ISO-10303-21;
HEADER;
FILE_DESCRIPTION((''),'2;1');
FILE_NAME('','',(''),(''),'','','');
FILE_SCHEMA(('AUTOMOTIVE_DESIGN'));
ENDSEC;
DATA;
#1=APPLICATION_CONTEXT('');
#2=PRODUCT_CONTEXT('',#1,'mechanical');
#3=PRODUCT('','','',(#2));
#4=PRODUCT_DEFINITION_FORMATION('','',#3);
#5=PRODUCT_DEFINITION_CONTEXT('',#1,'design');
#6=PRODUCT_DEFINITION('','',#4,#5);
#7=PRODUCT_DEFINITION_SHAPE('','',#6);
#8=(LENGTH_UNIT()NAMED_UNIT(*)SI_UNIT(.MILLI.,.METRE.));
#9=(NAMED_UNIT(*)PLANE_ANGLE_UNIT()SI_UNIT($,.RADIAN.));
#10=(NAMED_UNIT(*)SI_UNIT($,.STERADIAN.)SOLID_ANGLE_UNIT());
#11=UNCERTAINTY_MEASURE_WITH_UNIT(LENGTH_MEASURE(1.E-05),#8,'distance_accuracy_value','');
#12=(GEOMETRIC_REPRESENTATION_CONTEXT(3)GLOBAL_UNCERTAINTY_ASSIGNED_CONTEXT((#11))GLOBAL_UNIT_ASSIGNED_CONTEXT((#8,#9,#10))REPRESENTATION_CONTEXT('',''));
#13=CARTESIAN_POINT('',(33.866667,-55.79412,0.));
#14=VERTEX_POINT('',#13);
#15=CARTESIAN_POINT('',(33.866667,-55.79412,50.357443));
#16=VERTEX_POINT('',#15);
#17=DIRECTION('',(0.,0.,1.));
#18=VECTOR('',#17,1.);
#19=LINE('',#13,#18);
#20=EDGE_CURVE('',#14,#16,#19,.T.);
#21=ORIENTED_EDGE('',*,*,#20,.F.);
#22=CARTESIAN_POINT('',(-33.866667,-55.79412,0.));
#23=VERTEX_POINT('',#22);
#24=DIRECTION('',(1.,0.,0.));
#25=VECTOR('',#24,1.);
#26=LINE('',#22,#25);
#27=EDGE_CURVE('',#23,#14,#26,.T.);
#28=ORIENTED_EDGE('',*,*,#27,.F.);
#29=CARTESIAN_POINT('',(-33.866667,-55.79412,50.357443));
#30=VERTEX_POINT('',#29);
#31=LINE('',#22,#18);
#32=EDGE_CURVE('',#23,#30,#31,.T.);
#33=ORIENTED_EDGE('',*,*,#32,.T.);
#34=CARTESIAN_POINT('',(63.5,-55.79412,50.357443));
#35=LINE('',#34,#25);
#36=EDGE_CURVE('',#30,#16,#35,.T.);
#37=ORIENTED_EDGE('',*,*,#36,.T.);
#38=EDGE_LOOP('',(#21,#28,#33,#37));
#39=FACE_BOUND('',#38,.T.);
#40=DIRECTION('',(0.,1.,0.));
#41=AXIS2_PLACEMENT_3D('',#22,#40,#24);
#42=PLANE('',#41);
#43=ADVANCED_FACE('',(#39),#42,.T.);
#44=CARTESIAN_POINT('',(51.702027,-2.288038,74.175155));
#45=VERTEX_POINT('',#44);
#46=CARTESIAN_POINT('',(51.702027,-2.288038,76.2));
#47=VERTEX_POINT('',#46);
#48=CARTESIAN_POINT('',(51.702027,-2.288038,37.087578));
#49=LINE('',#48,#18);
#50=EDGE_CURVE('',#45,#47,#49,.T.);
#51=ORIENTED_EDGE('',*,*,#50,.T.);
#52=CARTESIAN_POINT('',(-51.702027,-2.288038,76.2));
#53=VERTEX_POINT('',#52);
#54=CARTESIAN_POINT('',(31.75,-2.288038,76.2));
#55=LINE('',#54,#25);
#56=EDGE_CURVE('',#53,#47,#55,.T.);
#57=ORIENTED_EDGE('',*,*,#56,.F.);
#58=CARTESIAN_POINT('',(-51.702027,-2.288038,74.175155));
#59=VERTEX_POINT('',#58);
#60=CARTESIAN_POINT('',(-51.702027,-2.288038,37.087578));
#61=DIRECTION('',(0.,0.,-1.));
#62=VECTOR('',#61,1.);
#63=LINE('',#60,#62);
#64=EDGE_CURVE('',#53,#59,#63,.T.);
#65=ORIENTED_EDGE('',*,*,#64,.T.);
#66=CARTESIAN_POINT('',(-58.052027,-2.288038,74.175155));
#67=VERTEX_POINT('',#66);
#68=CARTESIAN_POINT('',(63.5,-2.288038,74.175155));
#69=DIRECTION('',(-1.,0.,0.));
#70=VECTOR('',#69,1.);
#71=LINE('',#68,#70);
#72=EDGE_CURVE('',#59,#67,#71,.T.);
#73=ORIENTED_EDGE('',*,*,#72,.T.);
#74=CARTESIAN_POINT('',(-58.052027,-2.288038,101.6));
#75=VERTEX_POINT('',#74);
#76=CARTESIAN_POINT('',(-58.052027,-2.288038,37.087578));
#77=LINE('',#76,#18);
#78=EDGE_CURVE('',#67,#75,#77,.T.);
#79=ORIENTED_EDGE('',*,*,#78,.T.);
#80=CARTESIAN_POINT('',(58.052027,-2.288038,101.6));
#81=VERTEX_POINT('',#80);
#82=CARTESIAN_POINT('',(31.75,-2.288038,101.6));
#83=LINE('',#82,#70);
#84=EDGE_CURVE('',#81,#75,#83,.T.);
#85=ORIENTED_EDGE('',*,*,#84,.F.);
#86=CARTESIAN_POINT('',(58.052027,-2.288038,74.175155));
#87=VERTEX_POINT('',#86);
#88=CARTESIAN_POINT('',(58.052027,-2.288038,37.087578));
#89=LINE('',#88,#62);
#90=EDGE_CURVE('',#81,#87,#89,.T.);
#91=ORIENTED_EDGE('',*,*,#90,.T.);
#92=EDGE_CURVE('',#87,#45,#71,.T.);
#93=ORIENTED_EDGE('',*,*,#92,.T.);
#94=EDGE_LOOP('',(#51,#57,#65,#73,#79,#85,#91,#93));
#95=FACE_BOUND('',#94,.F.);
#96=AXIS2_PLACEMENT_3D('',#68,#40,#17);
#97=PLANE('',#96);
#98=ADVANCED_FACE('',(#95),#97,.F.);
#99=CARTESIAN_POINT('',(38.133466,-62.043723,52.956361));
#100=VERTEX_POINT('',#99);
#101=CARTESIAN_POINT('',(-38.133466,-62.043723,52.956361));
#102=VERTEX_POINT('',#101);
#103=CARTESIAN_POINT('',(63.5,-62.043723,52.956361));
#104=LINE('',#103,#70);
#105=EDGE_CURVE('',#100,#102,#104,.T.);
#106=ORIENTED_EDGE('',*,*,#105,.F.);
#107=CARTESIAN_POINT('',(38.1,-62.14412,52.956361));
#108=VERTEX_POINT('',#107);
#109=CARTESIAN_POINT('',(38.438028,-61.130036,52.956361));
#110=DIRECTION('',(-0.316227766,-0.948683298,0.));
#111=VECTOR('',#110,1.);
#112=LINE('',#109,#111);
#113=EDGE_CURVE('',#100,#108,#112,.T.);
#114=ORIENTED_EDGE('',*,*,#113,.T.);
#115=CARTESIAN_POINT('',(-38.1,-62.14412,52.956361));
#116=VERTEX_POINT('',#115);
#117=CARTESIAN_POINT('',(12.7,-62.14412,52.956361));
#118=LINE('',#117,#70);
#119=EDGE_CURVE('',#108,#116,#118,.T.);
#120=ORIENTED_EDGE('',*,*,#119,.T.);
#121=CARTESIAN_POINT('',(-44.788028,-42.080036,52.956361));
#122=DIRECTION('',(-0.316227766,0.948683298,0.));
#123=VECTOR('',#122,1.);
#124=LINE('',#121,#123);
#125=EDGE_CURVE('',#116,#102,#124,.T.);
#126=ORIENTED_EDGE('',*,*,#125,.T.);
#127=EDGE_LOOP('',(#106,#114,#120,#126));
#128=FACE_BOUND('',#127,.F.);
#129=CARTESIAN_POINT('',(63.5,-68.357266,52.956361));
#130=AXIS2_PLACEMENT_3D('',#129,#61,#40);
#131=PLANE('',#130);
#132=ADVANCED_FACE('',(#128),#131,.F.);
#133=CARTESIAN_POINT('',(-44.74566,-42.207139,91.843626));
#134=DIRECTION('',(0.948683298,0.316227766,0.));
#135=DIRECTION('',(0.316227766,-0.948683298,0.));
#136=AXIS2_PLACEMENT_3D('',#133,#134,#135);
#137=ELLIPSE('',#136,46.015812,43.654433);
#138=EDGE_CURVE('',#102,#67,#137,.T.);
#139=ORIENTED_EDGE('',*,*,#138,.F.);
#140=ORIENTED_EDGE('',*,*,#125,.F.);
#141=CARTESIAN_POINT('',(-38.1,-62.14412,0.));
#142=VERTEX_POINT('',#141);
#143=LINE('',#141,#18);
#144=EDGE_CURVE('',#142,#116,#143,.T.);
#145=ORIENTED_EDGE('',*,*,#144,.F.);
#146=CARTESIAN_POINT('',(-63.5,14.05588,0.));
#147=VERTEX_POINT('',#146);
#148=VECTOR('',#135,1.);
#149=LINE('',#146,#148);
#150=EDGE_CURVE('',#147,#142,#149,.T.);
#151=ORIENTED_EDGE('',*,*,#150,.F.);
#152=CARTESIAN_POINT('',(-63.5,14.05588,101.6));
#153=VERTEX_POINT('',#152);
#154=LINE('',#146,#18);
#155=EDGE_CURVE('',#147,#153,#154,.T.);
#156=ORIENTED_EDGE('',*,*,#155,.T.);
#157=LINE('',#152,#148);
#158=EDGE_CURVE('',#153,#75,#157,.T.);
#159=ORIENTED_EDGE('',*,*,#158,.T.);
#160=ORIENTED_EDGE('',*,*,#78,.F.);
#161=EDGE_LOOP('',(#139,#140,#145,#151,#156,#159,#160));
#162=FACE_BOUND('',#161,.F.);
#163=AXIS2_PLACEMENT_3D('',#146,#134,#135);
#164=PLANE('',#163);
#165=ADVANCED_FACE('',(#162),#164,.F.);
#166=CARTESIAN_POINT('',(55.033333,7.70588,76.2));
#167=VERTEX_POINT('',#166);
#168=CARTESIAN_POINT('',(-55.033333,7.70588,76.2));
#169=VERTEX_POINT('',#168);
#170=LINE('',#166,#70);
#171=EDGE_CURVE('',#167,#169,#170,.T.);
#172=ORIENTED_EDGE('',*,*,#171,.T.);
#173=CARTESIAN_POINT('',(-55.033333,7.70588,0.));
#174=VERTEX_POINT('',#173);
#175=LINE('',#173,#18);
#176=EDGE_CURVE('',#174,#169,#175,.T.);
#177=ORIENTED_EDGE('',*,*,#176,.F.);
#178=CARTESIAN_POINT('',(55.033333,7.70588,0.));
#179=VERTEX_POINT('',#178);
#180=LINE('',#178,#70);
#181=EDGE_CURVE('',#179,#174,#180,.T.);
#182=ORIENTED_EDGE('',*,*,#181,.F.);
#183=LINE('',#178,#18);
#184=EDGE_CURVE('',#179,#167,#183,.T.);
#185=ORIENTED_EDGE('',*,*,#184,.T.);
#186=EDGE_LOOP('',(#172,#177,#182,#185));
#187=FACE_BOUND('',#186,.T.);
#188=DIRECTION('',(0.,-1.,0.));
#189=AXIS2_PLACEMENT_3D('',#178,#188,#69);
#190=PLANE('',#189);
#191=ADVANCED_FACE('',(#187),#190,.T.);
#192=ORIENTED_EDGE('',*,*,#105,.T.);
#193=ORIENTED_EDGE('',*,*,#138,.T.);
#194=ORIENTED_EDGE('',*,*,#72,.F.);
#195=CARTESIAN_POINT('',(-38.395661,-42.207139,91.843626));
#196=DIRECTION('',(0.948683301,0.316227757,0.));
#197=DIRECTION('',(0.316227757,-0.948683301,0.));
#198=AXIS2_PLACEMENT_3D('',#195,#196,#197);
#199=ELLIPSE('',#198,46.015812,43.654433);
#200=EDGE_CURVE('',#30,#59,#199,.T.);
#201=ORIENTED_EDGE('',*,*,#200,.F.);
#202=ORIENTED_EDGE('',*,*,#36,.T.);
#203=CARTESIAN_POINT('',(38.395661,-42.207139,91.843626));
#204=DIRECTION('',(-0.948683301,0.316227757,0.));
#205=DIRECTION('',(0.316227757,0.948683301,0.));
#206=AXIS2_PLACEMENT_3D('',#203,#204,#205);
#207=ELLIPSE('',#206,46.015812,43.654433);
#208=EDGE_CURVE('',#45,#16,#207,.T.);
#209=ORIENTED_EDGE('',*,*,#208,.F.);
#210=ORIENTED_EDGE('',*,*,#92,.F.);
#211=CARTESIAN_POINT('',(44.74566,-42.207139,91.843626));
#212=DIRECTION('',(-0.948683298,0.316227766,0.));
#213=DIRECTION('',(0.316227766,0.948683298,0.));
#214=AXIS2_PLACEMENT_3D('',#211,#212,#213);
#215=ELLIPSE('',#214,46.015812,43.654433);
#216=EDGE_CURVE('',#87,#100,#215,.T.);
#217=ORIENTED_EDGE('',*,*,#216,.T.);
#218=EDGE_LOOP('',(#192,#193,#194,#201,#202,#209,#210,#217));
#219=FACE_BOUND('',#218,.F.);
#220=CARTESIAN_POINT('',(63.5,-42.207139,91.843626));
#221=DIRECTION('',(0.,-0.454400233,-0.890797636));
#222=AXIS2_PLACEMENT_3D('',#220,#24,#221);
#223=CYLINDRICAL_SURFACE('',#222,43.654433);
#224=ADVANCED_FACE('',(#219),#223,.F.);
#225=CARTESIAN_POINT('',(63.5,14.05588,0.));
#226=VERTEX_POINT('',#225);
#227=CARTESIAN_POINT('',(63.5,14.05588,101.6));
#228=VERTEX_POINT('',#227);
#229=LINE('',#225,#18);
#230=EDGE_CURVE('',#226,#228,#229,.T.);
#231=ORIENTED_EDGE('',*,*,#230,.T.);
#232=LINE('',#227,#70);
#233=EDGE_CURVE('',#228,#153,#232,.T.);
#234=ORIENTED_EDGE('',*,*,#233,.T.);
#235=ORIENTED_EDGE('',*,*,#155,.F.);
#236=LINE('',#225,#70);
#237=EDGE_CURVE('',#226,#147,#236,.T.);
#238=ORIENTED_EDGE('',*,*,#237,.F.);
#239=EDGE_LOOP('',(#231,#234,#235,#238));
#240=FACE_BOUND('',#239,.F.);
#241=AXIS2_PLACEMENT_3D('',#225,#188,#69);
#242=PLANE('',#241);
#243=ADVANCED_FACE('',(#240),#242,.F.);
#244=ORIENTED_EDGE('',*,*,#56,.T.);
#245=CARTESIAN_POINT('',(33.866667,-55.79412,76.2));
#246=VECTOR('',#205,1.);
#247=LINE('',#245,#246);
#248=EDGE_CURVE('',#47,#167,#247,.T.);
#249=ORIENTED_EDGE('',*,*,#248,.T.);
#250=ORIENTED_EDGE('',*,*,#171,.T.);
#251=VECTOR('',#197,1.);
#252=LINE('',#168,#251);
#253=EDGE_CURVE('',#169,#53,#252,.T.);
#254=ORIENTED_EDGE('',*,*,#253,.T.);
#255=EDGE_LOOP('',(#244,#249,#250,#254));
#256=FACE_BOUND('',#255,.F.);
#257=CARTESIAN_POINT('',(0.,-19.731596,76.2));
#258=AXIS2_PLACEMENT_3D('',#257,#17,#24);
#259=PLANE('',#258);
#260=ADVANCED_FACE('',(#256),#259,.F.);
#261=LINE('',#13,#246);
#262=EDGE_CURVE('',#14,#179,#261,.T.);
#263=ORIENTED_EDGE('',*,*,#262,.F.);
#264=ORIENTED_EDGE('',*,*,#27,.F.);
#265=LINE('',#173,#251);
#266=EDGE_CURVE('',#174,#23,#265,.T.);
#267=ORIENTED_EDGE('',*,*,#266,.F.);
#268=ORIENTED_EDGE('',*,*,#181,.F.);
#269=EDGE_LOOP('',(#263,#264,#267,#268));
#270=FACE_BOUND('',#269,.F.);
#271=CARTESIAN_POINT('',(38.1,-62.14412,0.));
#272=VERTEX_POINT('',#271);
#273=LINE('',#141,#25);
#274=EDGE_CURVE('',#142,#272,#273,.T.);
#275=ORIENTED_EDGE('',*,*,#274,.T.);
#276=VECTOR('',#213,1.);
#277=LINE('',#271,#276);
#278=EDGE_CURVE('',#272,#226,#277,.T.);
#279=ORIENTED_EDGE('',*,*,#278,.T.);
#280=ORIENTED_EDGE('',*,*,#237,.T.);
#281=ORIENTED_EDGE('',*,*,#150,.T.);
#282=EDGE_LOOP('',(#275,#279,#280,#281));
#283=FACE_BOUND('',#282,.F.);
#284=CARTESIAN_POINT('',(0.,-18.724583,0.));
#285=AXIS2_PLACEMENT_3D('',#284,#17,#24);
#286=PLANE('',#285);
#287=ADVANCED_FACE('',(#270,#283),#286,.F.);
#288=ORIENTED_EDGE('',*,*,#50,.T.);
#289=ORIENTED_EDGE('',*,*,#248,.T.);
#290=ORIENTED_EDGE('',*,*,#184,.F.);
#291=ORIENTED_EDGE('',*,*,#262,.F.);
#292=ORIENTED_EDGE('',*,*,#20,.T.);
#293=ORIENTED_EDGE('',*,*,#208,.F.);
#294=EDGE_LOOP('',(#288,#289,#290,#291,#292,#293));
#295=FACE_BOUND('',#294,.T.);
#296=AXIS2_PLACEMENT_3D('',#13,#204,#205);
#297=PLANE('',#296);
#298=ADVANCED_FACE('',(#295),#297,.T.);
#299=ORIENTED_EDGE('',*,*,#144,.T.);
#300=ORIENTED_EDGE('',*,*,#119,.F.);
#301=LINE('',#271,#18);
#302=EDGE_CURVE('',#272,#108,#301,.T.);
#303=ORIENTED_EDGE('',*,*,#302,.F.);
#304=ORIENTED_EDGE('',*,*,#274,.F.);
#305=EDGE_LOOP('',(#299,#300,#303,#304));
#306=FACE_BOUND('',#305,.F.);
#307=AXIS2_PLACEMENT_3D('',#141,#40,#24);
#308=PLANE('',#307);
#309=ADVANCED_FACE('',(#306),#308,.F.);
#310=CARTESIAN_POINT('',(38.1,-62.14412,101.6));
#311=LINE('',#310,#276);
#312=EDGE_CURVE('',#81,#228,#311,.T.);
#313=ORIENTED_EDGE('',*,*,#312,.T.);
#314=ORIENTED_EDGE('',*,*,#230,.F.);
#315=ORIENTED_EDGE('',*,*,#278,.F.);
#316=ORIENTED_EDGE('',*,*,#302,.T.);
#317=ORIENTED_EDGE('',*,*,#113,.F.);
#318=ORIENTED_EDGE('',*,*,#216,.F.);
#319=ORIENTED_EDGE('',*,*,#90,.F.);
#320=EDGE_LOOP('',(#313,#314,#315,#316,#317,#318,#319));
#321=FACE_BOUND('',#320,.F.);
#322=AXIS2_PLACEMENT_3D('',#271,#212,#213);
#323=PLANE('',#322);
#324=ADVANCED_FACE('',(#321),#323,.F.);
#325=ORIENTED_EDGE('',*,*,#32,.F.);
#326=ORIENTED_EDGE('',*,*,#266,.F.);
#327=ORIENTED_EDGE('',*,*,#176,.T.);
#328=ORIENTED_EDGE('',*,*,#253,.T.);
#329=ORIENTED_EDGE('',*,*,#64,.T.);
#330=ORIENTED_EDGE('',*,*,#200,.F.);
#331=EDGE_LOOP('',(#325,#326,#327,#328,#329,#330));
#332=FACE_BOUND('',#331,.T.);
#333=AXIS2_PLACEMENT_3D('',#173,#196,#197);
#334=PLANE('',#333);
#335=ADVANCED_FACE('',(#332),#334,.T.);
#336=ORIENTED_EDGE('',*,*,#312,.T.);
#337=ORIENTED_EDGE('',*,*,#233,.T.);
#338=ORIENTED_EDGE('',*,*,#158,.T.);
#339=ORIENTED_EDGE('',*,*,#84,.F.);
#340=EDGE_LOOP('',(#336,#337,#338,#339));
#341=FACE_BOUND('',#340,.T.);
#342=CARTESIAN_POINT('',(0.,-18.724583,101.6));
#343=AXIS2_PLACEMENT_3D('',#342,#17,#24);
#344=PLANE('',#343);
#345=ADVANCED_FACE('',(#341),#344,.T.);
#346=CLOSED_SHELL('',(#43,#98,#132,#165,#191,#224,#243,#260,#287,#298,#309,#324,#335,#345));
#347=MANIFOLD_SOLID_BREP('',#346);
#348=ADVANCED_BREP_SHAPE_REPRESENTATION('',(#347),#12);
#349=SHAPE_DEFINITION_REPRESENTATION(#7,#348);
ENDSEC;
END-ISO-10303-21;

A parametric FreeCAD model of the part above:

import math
import FreeCAD as App
import Part
import Sketcher
from FreeCAD import Vector
Q = App.Units.Quantity

doc = App.newDocument("Part")
body = doc.addObject("PartDesign::Body", "Body")

# Sketch on XY plane
sketch1 = body.newObject("Sketcher::SketchObject", "Sketch")
sketch1.AttachmentSupport = (doc.getObject("XY_Plane"), [""])
sketch1.MapMode = "FlatFace"
sketch1.addGeometry([
    Part.LineSegment(Vector(-64, 14, 0), Vector(-38, -62, 0)),
    Part.LineSegment(Vector(-38, -62, 0), Vector(38, -62, 0)),
    Part.LineSegment(Vector(38, -62, 0), Vector(64, 14, 0)),
    Part.LineSegment(Vector(64, 14, 0), Vector(-64, 14, 0)),
], False)
sketch1.addConstraint([
    Sketcher.Constraint("Coincident", 0, 2, 1, 1),
    Sketcher.Constraint("Coincident", 1, 2, 2, 1),
    Sketcher.Constraint("Coincident", 2, 2, 3, 1),
    Sketcher.Constraint("Coincident", 3, 2, 0, 1),
    Sketcher.Constraint("Horizontal", 1),
    Sketcher.Constraint("Horizontal", 3),
    Sketcher.Constraint("Equal", 0, 2),
    Sketcher.Constraint("DistanceX", 1, 1, 1, 2, Q("3 in")),
    Sketcher.Constraint("DistanceX", 3, 2, 3, 1, Q("5 in")),
    Sketcher.Constraint("DistanceY", 1, 2, 2, 2, Q("3 in")),
    Sketcher.Constraint("DistanceX", 0, 2, -1, 1, Q("1.5 in")),
    Sketcher.Constraint("DistanceY", 0, 2, -1, 1, Q("62.14412 mm")),
])
pad1 = body.newObject("PartDesign::Pad", "Pad")
pad1.Profile = sketch1
pad1.Length = Q("4 in")

# Sketch on YZ plane
sketch2 = body.newObject("Sketcher::SketchObject", "Sketch001")
sketch2.AttachmentSupport = (doc.getObject("YZ_Plane"), [""])
sketch2.MapMode = "FlatFace"
sketch2.AttachmentOffset = App.Placement(Vector(0, 0, 2.5 * 25.4), App.Rotation())
sketch2.addGeometry([
    Part.LineSegment(Vector(-2, 110, 0), Vector(-34, 110, 0)),  # 0
    Part.ArcOfCircle(Part.Circle(Vector(-38, 75, 0), Vector(0, 0, 1), 35), math.radians(84), math.radians(125)),  # 1
    Part.LineSegment(Vector(-58, 104, 0), Vector(-68, 104, 0)),  # 2
    Part.LineSegment(Vector(-68, 104, 0), Vector(-68, 53, 0)),  # 3
    Part.LineSegment(Vector(-68, 53, 0), Vector(-62, 53, 0)),  # 4
    Part.ArcOfCircle(Part.Circle(Vector(-42, 92, 0), Vector(0, 0, 1), 44), math.radians(-117), math.radians(-24)),  # 5
    Part.LineSegment(Vector(-2, 74, 0), Vector(-2, 110, 0)),  # 6
], False)
sketch2.addConstraint([
    Sketcher.Constraint("Coincident", 0, 2, 1, 1),
    Sketcher.Constraint("Coincident", 1, 2, 2, 1),
    Sketcher.Constraint("Coincident", 2, 2, 3, 1),
    Sketcher.Constraint("Coincident", 3, 2, 4, 1),
    Sketcher.Constraint("Coincident", 4, 2, 5, 1),
    Sketcher.Constraint("Coincident", 5, 2, 6, 1),
    Sketcher.Constraint("Coincident", 6, 2, 0, 1),
    Sketcher.Constraint("Horizontal", 0),
    Sketcher.Constraint("Horizontal", 2),
    Sketcher.Constraint("Vertical", 3),
    Sketcher.Constraint("Horizontal", 4),
    Sketcher.Constraint("Vertical", 6),
    Sketcher.Constraint("Radius", 1, Q("35.250322 mm")),
    Sketcher.Constraint("Radius", 5, Q("43.654433 mm")),
    Sketcher.Constraint("DistanceY", 6, 1, 6, 2, Q("36.232309 mm")),
    Sketcher.Constraint("DistanceY", 1, 3, 5, 3, Q("16.508299 mm")),
    Sketcher.Constraint("DistanceX", 5, 3, 5, 2, Q("39.919101 mm")),
    Sketcher.Constraint("DistanceY", 5, 2, 1, 2, Q("30.033001 mm")),
    Sketcher.Constraint("DistanceX", 0, 2, 0, 1, Q("31.691403 mm")),
    Sketcher.Constraint("DistanceX", 2, 2, 2, 1, Q("10.615607 mm")),
    Sketcher.Constraint("DistanceX", 4, 1, 4, 2, Q("6.313543 mm")),
    Sketcher.Constraint("DistanceX", 1, 3, -1, 1, Q("37.519272 mm")),
    Sketcher.Constraint("DistanceY", -1, 1, 3, 2, Q("52.956361 mm")),
])
pocket1 = body.newObject("PartDesign::Pocket", "Pocket")
pocket1.Profile = sketch2
pocket1.Length = Q("5 in")

# Sketch on XY plane
sketch3 = body.newObject("Sketcher::SketchObject", "Sketch002")
sketch3.AttachmentSupport = (doc.getObject("XY_Plane"), [""])
sketch3.MapMode = "FlatFace"
sketch3.addGeometry([
    Part.LineSegment(Vector(55, 8, 0), Vector(-55, 8, 0)),
    Part.LineSegment(Vector(-55, 8, 0), Vector(-34, -56, 0)),
    Part.LineSegment(Vector(-34, -56, 0), Vector(34, -56, 0)),
    Part.LineSegment(Vector(34, -56, 0), Vector(55, 8, 0)),
], False)
sketch3.addConstraint([
    Sketcher.Constraint("Coincident", 0, 2, 1, 1),
    Sketcher.Constraint("Coincident", 1, 2, 2, 1),
    Sketcher.Constraint("Coincident", 2, 2, 3, 1),
    Sketcher.Constraint("Coincident", 3, 2, 0, 1),
    Sketcher.Constraint("Horizontal", 0),
    Sketcher.Constraint("Horizontal", 2),
    Sketcher.Constraint("Equal", 1, 3),
    Sketcher.Constraint("DistanceY", 1, 2, 0, 2, Q("2.5 in")),
    Sketcher.Constraint("DistanceX", 0, 2, 2, 2, Q("3.5 in")),
    Sketcher.Constraint("DistanceX", 0, 2, 0, 1, Q("110.066666 mm")),
    Sketcher.Constraint("DistanceY", -1, 1, 0, 2, Q("7.70588 mm")),
    Sketcher.Constraint("DistanceX", 0, 2, -1, 1, Q("55.033333 mm")),
])
pocket2 = body.newObject("PartDesign::Pocket", "Pocket001")
pocket2.Profile = sketch3
pocket2.Length = Q("3 in")
pocket2.Reversed = True

doc.recompute()
